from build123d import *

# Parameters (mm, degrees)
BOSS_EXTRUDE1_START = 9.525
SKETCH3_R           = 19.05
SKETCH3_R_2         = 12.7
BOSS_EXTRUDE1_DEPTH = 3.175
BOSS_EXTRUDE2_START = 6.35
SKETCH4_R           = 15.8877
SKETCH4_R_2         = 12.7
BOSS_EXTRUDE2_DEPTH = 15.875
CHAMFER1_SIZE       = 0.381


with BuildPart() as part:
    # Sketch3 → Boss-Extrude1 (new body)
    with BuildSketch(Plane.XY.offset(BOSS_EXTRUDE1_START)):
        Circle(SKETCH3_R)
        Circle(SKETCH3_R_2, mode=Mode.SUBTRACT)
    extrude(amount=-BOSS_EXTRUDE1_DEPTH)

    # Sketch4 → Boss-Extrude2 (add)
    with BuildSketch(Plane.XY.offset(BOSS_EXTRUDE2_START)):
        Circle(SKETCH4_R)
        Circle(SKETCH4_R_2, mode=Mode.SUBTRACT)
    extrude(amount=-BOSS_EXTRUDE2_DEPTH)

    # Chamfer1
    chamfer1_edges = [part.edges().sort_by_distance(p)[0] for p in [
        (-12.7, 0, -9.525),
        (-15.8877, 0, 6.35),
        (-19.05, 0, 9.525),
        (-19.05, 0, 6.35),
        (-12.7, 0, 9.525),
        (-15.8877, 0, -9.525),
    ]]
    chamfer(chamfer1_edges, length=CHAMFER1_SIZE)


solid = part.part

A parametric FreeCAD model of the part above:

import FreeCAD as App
import Part
import Sketcher
from FreeCAD import Vector
Q = App.Units.Quantity


def edges_at(feature, points):
    """Names of the edges that pass closest to the given points."""
    edges = feature.Shape.Edges
    near = lambda p: min(range(len(edges)), key=lambda i: edges[i].distToShape(Part.Vertex(*p))[0])
    return sorted({f"Edge{near(p) + 1}" for p in points})

doc = App.newDocument("Part")
body = doc.addObject("PartDesign::Body", "Body")

# Sketch on XY plane
sketch1 = body.newObject("Sketcher::SketchObject", "Sketch")
sketch1.AttachmentSupport = (doc.getObject("XY_Plane"), [""])
sketch1.MapMode = "FlatFace"
sketch1.AttachmentOffset = App.Placement(Vector(0, 0, 0.375 * 25.4), App.Rotation())
sketch1.addGeometry(Part.Circle(Vector(0, 0, 0), Vector(0, 0, 1), 19.05), False)
sketch1.addGeometry(Part.Circle(Vector(0, 0, 0), Vector(0, 0, 1), 12.7), False)
sketch1.addConstraint(Sketcher.Constraint("Coincident", 0, 3, -1, 1))
sketch1.addConstraint(Sketcher.Constraint("Coincident", 1, 3, -1, 1))
sketch1.addConstraint(Sketcher.Constraint("Diameter", 1, Q("1 in")))
sketch1.addConstraint(Sketcher.Constraint("Diameter", 0, Q("1.5 in")))
pad1 = body.newObject("PartDesign::Pad", "Pad")
pad1.Profile = sketch1
pad1.Length = Q("0.125 in")
pad1.Reversed = True

# Sketch on XY plane
sketch2 = body.newObject("Sketcher::SketchObject", "Sketch001")
sketch2.AttachmentSupport = (doc.getObject("XY_Plane"), [""])
sketch2.MapMode = "FlatFace"
sketch2.AttachmentOffset = App.Placement(Vector(0, 0, 0.25 * 25.4), App.Rotation())
sketch2.addGeometry(Part.Circle(Vector(0, 0, 0), Vector(0, 0, 1), 15.8877), False)
sketch2.addGeometry(Part.Circle(Vector(0, 0, 0), Vector(0, 0, 1), 12.7), False)
sketch2.addConstraint(Sketcher.Constraint("Coincident", 0, 3, -1, 1))
sketch2.addConstraint(Sketcher.Constraint("Coincident", 1, 3, -1, 1))
sketch2.addConstraint(Sketcher.Constraint("Diameter", 1, Q("1 in")))
sketch2.addConstraint(Sketcher.Constraint("Diameter", 0, Q("1.251 in")))
pad2 = body.newObject("PartDesign::Pad", "Pad001")
pad2.Profile = sketch2
pad2.Length = Q("0.625 in")
pad2.Reversed = True
doc.recompute()

chamfer = body.newObject("PartDesign::Chamfer", "Chamfer")
chamfer.Base = (pad2, edges_at(pad2, [
    (-12.7, 0, -9.525),
    (-15.888, 0, 6.35),
    (-19.05, 0, 9.525),
    (-19.05, 0, 6.35),
    (-12.7, 0, 9.525),
    (-15.888, 0, -9.525),
]))
chamfer.Size = Q("0.015 in")

doc.recompute()
